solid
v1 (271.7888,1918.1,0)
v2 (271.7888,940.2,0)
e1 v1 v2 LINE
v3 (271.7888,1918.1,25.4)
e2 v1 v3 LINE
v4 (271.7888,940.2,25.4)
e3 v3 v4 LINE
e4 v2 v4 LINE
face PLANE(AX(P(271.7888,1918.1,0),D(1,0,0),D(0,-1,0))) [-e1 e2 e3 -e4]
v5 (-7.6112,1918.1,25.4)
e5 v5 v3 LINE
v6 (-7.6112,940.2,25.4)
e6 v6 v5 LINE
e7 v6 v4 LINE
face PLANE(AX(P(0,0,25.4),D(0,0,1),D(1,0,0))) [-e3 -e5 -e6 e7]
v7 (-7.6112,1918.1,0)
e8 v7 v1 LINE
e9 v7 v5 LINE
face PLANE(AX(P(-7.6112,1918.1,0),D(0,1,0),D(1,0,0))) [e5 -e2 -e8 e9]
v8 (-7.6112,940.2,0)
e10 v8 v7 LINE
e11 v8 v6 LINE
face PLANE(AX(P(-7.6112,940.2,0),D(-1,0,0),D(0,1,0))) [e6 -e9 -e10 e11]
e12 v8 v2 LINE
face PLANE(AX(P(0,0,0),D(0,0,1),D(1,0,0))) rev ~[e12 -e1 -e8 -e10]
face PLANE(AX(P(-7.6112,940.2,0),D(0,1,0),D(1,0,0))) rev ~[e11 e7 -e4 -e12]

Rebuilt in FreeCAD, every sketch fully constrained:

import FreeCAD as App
import Part
import Sketcher
from FreeCAD import Vector
Q = App.Units.Quantity

doc = App.newDocument("Part")
body = doc.addObject("PartDesign::Body", "Body")

# Sketch on XY plane
sketch1 = body.newObject("Sketcher::SketchObject", "Sketch")
sketch1.AttachmentSupport = (doc.getObject("XY_Plane"), [""])
sketch1.MapMode = "FlatFace"
sketch1.addGeometry(Part.LineSegment(Vector(272, 1918, 0), Vector(-8, 1918, 0)), False)
sketch1.addGeometry(Part.LineSegment(Vector(-8, 1918, 0), Vector(-8, 940, 0)), False)
sketch1.addGeometry(Part.LineSegment(Vector(-8, 940, 0), Vector(272, 940, 0)), False)
sketch1.addGeometry(Part.LineSegment(Vector(272, 940, 0), Vector(272, 1918, 0)), False)
sketch1.addConstraint(Sketcher.Constraint("Coincident", 0, 2, 1, 1))
sketch1.addConstraint(Sketcher.Constraint("Coincident", 1, 2, 2, 1))
sketch1.addConstraint(Sketcher.Constraint("Coincident", 2, 2, 3, 1))
sketch1.addConstraint(Sketcher.Constraint("Coincident", 3, 2, 0, 1))
sketch1.addConstraint(Sketcher.Constraint("Horizontal", 0))
sketch1.addConstraint(Sketcher.Constraint("Vertical", 1))
sketch1.addConstraint(Sketcher.Constraint("Horizontal", 2))
sketch1.addConstraint(Sketcher.Constraint("Vertical", 3))
sketch1.addConstraint(Sketcher.Constraint("DistanceX", 0, 2, 0, 1, Q("11 in")))
sketch1.addConstraint(Sketcher.Constraint("DistanceY", 1, 2, 1, 1, Q("38.5 in")))
sketch1.addConstraint(Sketcher.Constraint("DistanceX", 0, 2, -1, 1, 7.6112))
sketch1.addConstraint(Sketcher.Constraint("DistanceY", -1, 1, 0, 2, 1918.1))
pad1 = body.newObject("PartDesign::Pad", "Pad")
pad1.Profile = sketch1
pad1.Length = Q("1 in")

doc.recompute()
